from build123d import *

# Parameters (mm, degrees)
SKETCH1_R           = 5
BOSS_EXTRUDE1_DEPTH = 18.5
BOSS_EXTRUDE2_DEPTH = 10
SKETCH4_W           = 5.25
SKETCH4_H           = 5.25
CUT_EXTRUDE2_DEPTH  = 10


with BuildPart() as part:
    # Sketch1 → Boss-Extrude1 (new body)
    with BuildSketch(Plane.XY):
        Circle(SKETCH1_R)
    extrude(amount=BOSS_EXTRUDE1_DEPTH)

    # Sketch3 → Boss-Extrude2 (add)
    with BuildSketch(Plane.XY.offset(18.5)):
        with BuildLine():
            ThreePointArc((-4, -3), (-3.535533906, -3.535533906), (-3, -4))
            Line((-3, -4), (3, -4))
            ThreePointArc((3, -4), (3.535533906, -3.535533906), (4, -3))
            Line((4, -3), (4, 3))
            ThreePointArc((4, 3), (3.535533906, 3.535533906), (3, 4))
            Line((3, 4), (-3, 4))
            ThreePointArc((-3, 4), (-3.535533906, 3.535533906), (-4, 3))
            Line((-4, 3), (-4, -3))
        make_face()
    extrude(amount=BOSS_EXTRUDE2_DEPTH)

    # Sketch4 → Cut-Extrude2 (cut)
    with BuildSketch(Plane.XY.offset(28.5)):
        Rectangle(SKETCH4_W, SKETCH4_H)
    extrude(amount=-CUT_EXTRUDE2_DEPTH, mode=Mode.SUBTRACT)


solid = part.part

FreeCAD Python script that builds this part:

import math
import FreeCAD as App
import Part
import Sketcher

doc = App.newDocument("Part")
body = doc.addObject("PartDesign::Body", "Body")

# Sketch on XY plane
sketch1 = body.newObject("Sketcher::SketchObject", "Sketch")
sketch1.AttachmentSupport = (doc.getObject("XY_Plane"), [""])
sketch1.MapMode = "FlatFace"
sketch1.addGeometry(Part.Circle(App.Vector(0, 0, 0), App.Vector(0, 0, 1), 5), False)
sketch1.addConstraint(Sketcher.Constraint("Coincident", 0, 3, -1, 1))
sketch1.addConstraint(Sketcher.Constraint("Diameter", 0, 10.0))
pad1 = body.newObject("PartDesign::Pad", "Pad")
pad1.Profile = sketch1
pad1.Length = 18.5

# Sketch on XY plane
sketch2 = body.newObject("Sketcher::SketchObject", "Sketch001")
sketch2.AttachmentSupport = (doc.getObject("XY_Plane"), [""])
sketch2.MapMode = "FlatFace"
sketch2.AttachmentOffset = App.Placement(App.Vector(0, 0, 18.5), App.Rotation())
sketch2.addGeometry(Part.ArcOfCircle(Part.Circle(App.Vector(0, 0, 0), App.Vector(0, 0, 1), 5), math.radians(-143.13), math.radians(-126.87)), False)
sketch2.addGeometry(Part.LineSegment(App.Vector(-3, -4, 0), App.Vector(3, -4, 0)), False)
sketch2.addGeometry(Part.ArcOfCircle(Part.Circle(App.Vector(0, 0, 0), App.Vector(0, 0, 1), 5), math.radians(-53.13), math.radians(-36.87)), False)
sketch2.addGeometry(Part.LineSegment(App.Vector(4, -3, 0), App.Vector(4, 3, 0)), False)
sketch2.addGeometry(Part.ArcOfCircle(Part.Circle(App.Vector(0, 0, 0), App.Vector(0, 0, 1), 5), math.radians(36.87), math.radians(53.13)), False)
sketch2.addGeometry(Part.LineSegment(App.Vector(3, 4, 0), App.Vector(-3, 4, 0)), False)
sketch2.addGeometry(Part.ArcOfCircle(Part.Circle(App.Vector(0, 0, 0), App.Vector(0, 0, 1), 5), math.radians(126.87), math.radians(143.13)), False)
sketch2.addGeometry(Part.LineSegment(App.Vector(-4, 3, 0), App.Vector(-4, -3, 0)), False)
sketch2.addConstraint(Sketcher.Constraint("Coincident", 0, 2, 1, 1))
sketch2.addConstraint(Sketcher.Constraint("Coincident", 1, 2, 2, 1))
sketch2.addConstraint(Sketcher.Constraint("Coincident", 2, 2, 3, 1))
sketch2.addConstraint(Sketcher.Constraint("Coincident", 3, 2, 4, 1))
sketch2.addConstraint(Sketcher.Constraint("Coincident", 4, 2, 5, 1))
sketch2.addConstraint(Sketcher.Constraint("Coincident", 5, 2, 6, 1))
sketch2.addConstraint(Sketcher.Constraint("Coincident", 6, 2, 7, 1))
sketch2.addConstraint(Sketcher.Constraint("Coincident", 7, 2, 0, 1))
sketch2.addConstraint(Sketcher.Constraint("Horizontal", 1))
sketch2.addConstraint(Sketcher.Constraint("Vertical", 3))
sketch2.addConstraint(Sketcher.Constraint("Horizontal", 5))
sketch2.addConstraint(Sketcher.Constraint("Vertical", 7))
sketch2.addConstraint(Sketcher.Constraint("Coincident", 0, 3, -1, 1))
sketch2.addConstraint(Sketcher.Constraint("Coincident", 2, 3, -1, 1))
sketch2.addConstraint(Sketcher.Constraint("Coincident", 4, 3, -1, 1))
sketch2.addConstraint(Sketcher.Constraint("Coincident", 6, 3, -1, 1))
sketch2.addConstraint(Sketcher.Constraint("Equal", 0, 2))
sketch2.addConstraint(Sketcher.Constraint("Equal", 2, 4))
sketch2.addConstraint(Sketcher.Constraint("Equal", 4, 6))
sketch2.addConstraint(Sketcher.Constraint("Horizontal", 3, 2, 6, 2))
sketch2.addConstraint(Sketcher.Constraint("Vertical", 1, 2, 4, 2))
sketch2.addConstraint(Sketcher.Constraint("Equal", 5, 3))
sketch2.addConstraint(Sketcher.Constraint("Radius", 0, 5.0))
sketch2.addConstraint(Sketcher.Constraint("DistanceX", 1, 1, 1, 2, 6.0))
pad2 = body.newObject("PartDesign::Pad", "Pad001")
pad2.Profile = sketch2
pad2.Length = 10

# Sketch on XY plane
sketch3 = body.newObject("Sketcher::SketchObject", "Sketch002")
sketch3.AttachmentSupport = (doc.getObject("XY_Plane"), [""])
sketch3.MapMode = "FlatFace"
sketch3.AttachmentOffset = App.Placement(App.Vector(0, 0, 28.5), App.Rotation())
sketch3.addGeometry(Part.LineSegment(App.Vector(-3, 3, 0), App.Vector(-3, -3, 0)), False)
sketch3.addGeometry(Part.LineSegment(App.Vector(-3, -3, 0), App.Vector(3, -3, 0)), False)
sketch3.addGeometry(Part.LineSegment(App.Vector(3, -3, 0), App.Vector(3, 3, 0)), False)
sketch3.addGeometry(Part.LineSegment(App.Vector(3, 3, 0), App.Vector(-3, 3, 0)), False)
sketch3.addConstraint(Sketcher.Constraint("Coincident", 0, 2, 1, 1))
sketch3.addConstraint(Sketcher.Constraint("Coincident", 1, 2, 2, 1))
sketch3.addConstraint(Sketcher.Constraint("Coincident", 2, 2, 3, 1))
sketch3.addConstraint(Sketcher.Constraint("Coincident", 3, 2, 0, 1))
sketch3.addConstraint(Sketcher.Constraint("Vertical", 0))
sketch3.addConstraint(Sketcher.Constraint("Horizontal", 1))
sketch3.addConstraint(Sketcher.Constraint("Vertical", 2))
sketch3.addConstraint(Sketcher.Constraint("Horizontal", 3))
sketch3.addConstraint(Sketcher.Constraint("Symmetric", 0, 2, 2, 2, -1, 1))
sketch3.addConstraint(Sketcher.Constraint("Equal", 3, 0))
sketch3.addConstraint(Sketcher.Constraint("DistanceX", 1, 1, 1, 2, 5.25))
pocket1 = body.newObject("PartDesign::Pocket", "Pocket")
pocket1.Profile = sketch3
pocket1.Length = 10

doc.recompute()
